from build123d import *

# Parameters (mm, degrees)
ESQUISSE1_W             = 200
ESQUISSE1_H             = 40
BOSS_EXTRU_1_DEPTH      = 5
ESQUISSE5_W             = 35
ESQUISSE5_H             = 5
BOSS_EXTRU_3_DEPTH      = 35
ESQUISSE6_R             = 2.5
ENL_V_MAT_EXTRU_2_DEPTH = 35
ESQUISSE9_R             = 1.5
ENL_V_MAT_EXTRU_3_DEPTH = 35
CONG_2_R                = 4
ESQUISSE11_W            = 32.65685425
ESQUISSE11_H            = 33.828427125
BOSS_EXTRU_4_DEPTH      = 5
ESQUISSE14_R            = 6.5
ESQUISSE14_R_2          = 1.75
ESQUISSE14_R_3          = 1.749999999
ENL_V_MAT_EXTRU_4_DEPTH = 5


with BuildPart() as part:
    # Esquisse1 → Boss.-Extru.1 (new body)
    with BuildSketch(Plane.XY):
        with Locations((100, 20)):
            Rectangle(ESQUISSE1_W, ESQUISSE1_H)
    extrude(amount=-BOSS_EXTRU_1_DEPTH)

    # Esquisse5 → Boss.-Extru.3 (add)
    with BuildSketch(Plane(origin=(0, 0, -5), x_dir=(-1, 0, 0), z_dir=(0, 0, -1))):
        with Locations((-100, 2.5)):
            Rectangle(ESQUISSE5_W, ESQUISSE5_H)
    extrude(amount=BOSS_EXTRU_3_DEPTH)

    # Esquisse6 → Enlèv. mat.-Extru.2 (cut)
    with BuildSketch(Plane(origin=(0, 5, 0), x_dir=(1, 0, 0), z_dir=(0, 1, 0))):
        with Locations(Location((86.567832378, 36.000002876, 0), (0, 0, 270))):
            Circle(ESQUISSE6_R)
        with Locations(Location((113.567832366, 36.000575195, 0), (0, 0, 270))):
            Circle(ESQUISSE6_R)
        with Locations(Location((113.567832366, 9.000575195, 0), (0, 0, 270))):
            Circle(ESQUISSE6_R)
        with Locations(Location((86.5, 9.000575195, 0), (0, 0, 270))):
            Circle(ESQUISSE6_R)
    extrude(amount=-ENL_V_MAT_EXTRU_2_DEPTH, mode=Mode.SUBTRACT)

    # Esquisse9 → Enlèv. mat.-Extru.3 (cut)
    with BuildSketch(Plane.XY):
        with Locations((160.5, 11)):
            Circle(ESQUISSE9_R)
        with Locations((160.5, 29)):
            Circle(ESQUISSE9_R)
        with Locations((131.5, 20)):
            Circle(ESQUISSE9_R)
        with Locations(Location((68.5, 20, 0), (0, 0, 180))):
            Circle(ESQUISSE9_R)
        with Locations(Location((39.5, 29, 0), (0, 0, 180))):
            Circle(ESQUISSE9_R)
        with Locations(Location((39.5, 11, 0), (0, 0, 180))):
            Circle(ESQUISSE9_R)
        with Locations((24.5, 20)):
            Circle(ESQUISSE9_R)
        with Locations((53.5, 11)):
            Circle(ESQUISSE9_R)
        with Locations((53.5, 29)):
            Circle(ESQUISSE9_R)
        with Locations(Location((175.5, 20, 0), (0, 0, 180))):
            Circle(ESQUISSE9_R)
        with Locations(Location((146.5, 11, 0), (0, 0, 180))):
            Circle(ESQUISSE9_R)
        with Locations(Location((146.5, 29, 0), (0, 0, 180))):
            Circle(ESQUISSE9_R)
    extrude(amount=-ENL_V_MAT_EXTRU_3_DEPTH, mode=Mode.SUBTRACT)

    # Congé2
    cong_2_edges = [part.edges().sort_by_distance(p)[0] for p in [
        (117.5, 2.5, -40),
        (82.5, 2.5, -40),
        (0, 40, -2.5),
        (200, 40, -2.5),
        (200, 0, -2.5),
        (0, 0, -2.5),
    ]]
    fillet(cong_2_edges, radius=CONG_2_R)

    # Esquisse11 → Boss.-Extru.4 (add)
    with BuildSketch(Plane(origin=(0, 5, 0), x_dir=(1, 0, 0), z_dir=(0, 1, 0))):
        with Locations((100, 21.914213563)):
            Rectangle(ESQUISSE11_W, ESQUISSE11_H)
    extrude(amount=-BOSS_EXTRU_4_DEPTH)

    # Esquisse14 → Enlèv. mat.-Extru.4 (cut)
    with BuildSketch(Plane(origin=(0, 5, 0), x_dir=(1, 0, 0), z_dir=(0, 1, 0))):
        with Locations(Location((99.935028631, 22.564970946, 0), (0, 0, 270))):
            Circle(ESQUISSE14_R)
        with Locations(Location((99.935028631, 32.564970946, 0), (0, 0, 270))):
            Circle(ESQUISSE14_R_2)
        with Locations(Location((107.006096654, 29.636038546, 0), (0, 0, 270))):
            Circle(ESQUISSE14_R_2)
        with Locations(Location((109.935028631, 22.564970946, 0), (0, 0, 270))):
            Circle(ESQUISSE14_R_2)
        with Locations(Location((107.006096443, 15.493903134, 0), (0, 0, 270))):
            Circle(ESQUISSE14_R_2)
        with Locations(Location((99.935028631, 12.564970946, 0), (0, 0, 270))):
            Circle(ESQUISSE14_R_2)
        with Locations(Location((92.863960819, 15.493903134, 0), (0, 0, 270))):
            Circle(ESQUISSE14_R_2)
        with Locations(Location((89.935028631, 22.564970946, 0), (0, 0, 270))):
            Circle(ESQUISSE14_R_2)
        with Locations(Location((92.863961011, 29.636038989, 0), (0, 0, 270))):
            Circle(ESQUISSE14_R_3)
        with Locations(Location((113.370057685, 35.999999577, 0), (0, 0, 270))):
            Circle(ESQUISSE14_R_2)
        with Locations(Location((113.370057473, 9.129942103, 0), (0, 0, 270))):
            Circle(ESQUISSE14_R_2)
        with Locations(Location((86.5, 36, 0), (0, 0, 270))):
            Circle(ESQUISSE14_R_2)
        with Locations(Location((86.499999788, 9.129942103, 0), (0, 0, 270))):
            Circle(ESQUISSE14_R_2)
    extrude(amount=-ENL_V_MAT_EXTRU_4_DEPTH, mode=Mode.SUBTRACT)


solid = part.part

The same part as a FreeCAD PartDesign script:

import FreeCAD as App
import Part
import Sketcher
from FreeCAD import Vector
Q = App.Units.Quantity


def edges_at(feature, points):
    """Names of the edges that pass closest to the given points."""
    edges = feature.Shape.Edges
    near = lambda p: min(range(len(edges)), key=lambda i: edges[i].distToShape(Part.Vertex(*p))[0])
    return sorted({f"Edge{near(p) + 1}" for p in points})


def add_polygon(sketch, points):
    """Adds a closed chain of lines whose ends are joined by coincident constraints."""
    first, n = sketch.GeometryCount, len(points)
    for a, b in zip(points, points[1:] + points[:1]):
        sketch.addGeometry(Part.LineSegment(App.Vector(*a, 0), App.Vector(*b, 0)), False)
    for i in range(n):
        sketch.addConstraint(Sketcher.Constraint("Coincident", first + i, 2, first + (i + 1) % n, 1))

doc = App.newDocument("Part")
body = doc.addObject("PartDesign::Body", "Body")

sketch1 = doc.addObject("Sketcher::SketchObject", "Sketch")
body.addObject(sketch1)
sketch1.AttachmentSupport = (doc.XY_Plane, [""])
sketch1.MapMode = "FlatFace"
add_polygon(sketch1, [(0, 40), (0, 0), (200, 0), (200, 40)])
sketch1.addConstraint(Sketcher.Constraint("Vertical", 0))
sketch1.addConstraint(Sketcher.Constraint("Horizontal", 1))
sketch1.addConstraint(Sketcher.Constraint("Vertical", 2))
sketch1.addConstraint(Sketcher.Constraint("Horizontal", 3))
sketch1.addConstraint(Sketcher.Constraint("Coincident", 0, 2, -1, 1))
sketch1.addConstraint(Sketcher.Constraint("DistanceX", 1, 1, 1, 2, Q("200 mm")))
sketch1.addConstraint(Sketcher.Constraint("DistanceY", 0, 2, 0, 1, Q("40 mm")))
pad1 = doc.addObject("PartDesign::Pad", "Pad")
body.addObject(pad1)
pad1.Profile = sketch1
pad1.Length = 5
pad1.Reversed = True

sketch2 = doc.addObject("Sketcher::SketchObject", "Sketch001")
body.addObject(sketch2)
sketch2.AttachmentSupport = (doc.XY_Plane, [""])
sketch2.MapMode = "FlatFace"
sketch2.AttachmentOffset = App.Placement(Vector(0, 0, -5), App.Rotation())
add_polygon(sketch2, [(118, 5), (118, 0), (82, 0), (82, 5)])
sketch2.addConstraint(Sketcher.Constraint("Vertical", 0))
sketch2.addConstraint(Sketcher.Constraint("Horizontal", 1))
sketch2.addConstraint(Sketcher.Constraint("Vertical", 2))
sketch2.addConstraint(Sketcher.Constraint("Horizontal", 3))
sketch2.addConstraint(Sketcher.Constraint("PointOnObject", 0, 2, -1))
sketch2.addConstraint(Sketcher.Constraint("DistanceX", 1, 2, 1, 1, Q("35 mm")))
sketch2.addConstraint(Sketcher.Constraint("DistanceY", 0, 2, 0, 1, Q("5 mm")))
sketch2.addConstraint(Sketcher.Constraint("DistanceX", -1, 1, 0, 2, Q("117.5 mm")))
pad2 = doc.addObject("PartDesign::Pad", "Pad001")
body.addObject(pad2)
pad2.Profile = sketch2
pad2.Length = 35
pad2.Reversed = True

sketch3 = doc.addObject("Sketcher::SketchObject", "Sketch002")
body.addObject(sketch3)
sketch3.AttachmentSupport = (doc.XZ_Plane, [""])
sketch3.MapMode = "FlatFace"
sketch3.AttachmentOffset = App.Placement(Vector(0, 0, -5), App.Rotation())
sketch3.addGeometry(Part.Circle(Vector(86.6, -36, 0), Vector(0, 0, 1), 2.5), False)
sketch3.addGeometry(Part.Circle(Vector(113.6, -36, 0), Vector(0, 0, 1), 2.5), False)
sketch3.addGeometry(Part.Circle(Vector(113.6, -9, 0), Vector(0, 0, 1), 2.5), False)
sketch3.addGeometry(Part.Circle(Vector(86.5, -9, 0), Vector(0, 0, 1), 2.5), False)
sketch3.addConstraint(Sketcher.Constraint("Equal", 0, 1))
sketch3.addConstraint(Sketcher.Constraint("Equal", 1, 2))
sketch3.addConstraint(Sketcher.Constraint("Equal", 2, 3))
sketch3.addConstraint(Sketcher.Constraint("Horizontal", 2, 3, 3, 3))
sketch3.addConstraint(Sketcher.Constraint("Vertical", 1, 3, 2, 3))
sketch3.addConstraint(Sketcher.Constraint("Diameter", 0, Q("5 mm")))
sketch3.addConstraint(Sketcher.Constraint("DistanceX", 0, 3, 1, 3, Q("27 mm")))
sketch3.addConstraint(Sketcher.Constraint("DistanceY", 1, 3, 2, 3, Q("27 mm")))
sketch3.addConstraint(Sketcher.Constraint("DistanceX", -1, 1, 3, 3, Q("86.5 mm")))
sketch3.addConstraint(Sketcher.Constraint("DistanceX", -1, 1, 0, 3, Q("86.567832 mm")))
sketch3.addConstraint(Sketcher.Constraint("DistanceY", 0, 3, -1, 1, Q("36.000003 mm")))
sketch3.addConstraint(Sketcher.Constraint("DistanceY", 1, 3, -1, 1, Q("36.000575 mm")))
pocket1 = doc.addObject("PartDesign::Pocket", "Pocket")
body.addObject(pocket1)
pocket1.Profile = sketch3
pocket1.Length = 35
pocket1.Reversed = True

sketch4 = doc.addObject("Sketcher::SketchObject", "Sketch003")
body.addObject(sketch4)
sketch4.AttachmentSupport = (doc.XY_Plane, [""])
sketch4.MapMode = "FlatFace"
sketch4.addGeometry(Part.Circle(Vector(160.5, 11, 0), Vector(0, 0, 1), 1.5), False)
sketch4.addGeometry(Part.Circle(Vector(160.5, 29, 0), Vector(0, 0, 1), 1.5), False)
sketch4.addGeometry(Part.Circle(Vector(131.5, 20, 0), Vector(0, 0, 1), 1.5), False)
sketch4.addGeometry(Part.Circle(Vector(68.5, 20, 0), Vector(0, 0, 1), 1.5), False)
sketch4.addGeometry(Part.Circle(Vector(39.5, 29, 0), Vector(0, 0, 1), 1.5), False)
sketch4.addGeometry(Part.Circle(Vector(39.5, 11, 0), Vector(0, 0, 1), 1.5), False)
sketch4.addGeometry(Part.Circle(Vector(24.5, 20, 0), Vector(0, 0, 1), 1.5), False)
sketch4.addGeometry(Part.Circle(Vector(53.5, 11, 0), Vector(0, 0, 1), 1.5), False)
sketch4.addGeometry(Part.Circle(Vector(53.5, 29, 0), Vector(0, 0, 1), 1.5), False)
sketch4.addGeometry(Part.Circle(Vector(175.5, 20, 0), Vector(0, 0, 1), 1.5), False)
sketch4.addGeometry(Part.Circle(Vector(146.5, 11, 0), Vector(0, 0, 1), 1.5), False)
sketch4.addGeometry(Part.Circle(Vector(146.5, 29, 0), Vector(0, 0, 1), 1.5), False)
sketch4.addConstraint(Sketcher.Constraint("Equal", 0, 1))
sketch4.addConstraint(Sketcher.Constraint("Equal", 1, 2))
sketch4.addConstraint(Sketcher.Constraint("Equal", 2, 3))
sketch4.addConstraint(Sketcher.Constraint("Equal", 3, 4))
sketch4.addConstraint(Sketcher.Constraint("Equal", 4, 5))
sketch4.addConstraint(Sketcher.Constraint("Equal", 5, 6))
sketch4.addConstraint(Sketcher.Constraint("Equal", 6, 7))
sketch4.addConstraint(Sketcher.Constraint("Equal", 7, 8))
sketch4.addConstraint(Sketcher.Constraint("Equal", 8, 9))
sketch4.addConstraint(Sketcher.Constraint("Equal", 9, 10))
sketch4.addConstraint(Sketcher.Constraint("Equal", 10, 11))
sketch4.addConstraint(Sketcher.Constraint("Horizontal", 2, 3, 3, 3))
sketch4.addConstraint(Sketcher.Constraint("Horizontal", 1, 3, 4, 3))
sketch4.addConstraint(Sketcher.Constraint("Horizontal", 0, 3, 5, 3))
sketch4.addConstraint(Sketcher.Constraint("Horizontal", 3, 3, 6, 3))
sketch4.addConstraint(Sketcher.Constraint("Horizontal", 5, 3, 7, 3))
sketch4.addConstraint(Sketcher.Constraint("Horizontal", 4, 3, 8, 3))
sketch4.addConstraint(Sketcher.Constraint("Horizontal", 6, 3, 9, 3))
sketch4.addConstraint(Sketcher.Constraint("Horizontal", 7, 3, 10, 3))
sketch4.addConstraint(Sketcher.Constraint("Horizontal", 8, 3, 11, 3))
sketch4.addConstraint(Sketcher.Constraint("Vertical", 0, 3, 1, 3))
sketch4.addConstraint(Sketcher.Constraint("Vertical", 4, 3, 5, 3))
sketch4.addConstraint(Sketcher.Constraint("Vertical", 7, 3, 8, 3))
sketch4.addConstraint(Sketcher.Constraint("Vertical", 10, 3, 11, 3))
sketch4.addConstraint(Sketcher.Constraint("Diameter", 0, Q("3 mm")))
sketch4.addConstraint(Sketcher.Constraint("DistanceY", -1, 1, 0, 3, Q("11 mm")))
sketch4.addConstraint(Sketcher.Constraint("DistanceY", -1, 1, 1, 3, Q("29 mm")))
sketch4.addConstraint(Sketcher.Constraint("DistanceY", -1, 1, 2, 3, Q("20 mm")))
sketch4.addConstraint(Sketcher.Constraint("DistanceX", 2, 3, 0, 3, Q("29 mm")))
sketch4.addConstraint(Sketcher.Constraint("DistanceX", 3, 3, 2, 3, Q("63 mm")))
sketch4.addConstraint(Sketcher.Constraint("DistanceX", 4, 3, 3, 3, Q("29 mm")))
sketch4.addConstraint(Sketcher.Constraint("DistanceX", 6, 3, 4, 3, Q("15 mm")))
sketch4.addConstraint(Sketcher.Constraint("DistanceX", 5, 3, 7, 3, Q("14 mm")))
sketch4.addConstraint(Sketcher.Constraint("DistanceX", 0, 3, 9, 3, Q("15 mm")))
sketch4.addConstraint(Sketcher.Constraint("DistanceX", 10, 3, 0, 3, Q("14 mm")))
sketch4.addConstraint(Sketcher.Constraint("DistanceX", -1, 1, 0, 3, Q("160.5 mm")))
pocket2 = doc.addObject("PartDesign::Pocket", "Pocket001")
body.addObject(pocket2)
pocket2.Profile = sketch4
pocket2.Length = 35
doc.recompute()

fillet = doc.addObject("PartDesign::Fillet", "Fillet")
body.addObject(fillet)
fillet.Base = (pocket2, edges_at(pocket2, [
    (117.5, 2.5, -40),
    (82.5, 2.5, -40),
    (0, 40, -2.5),
    (200, 40, -2.5),
    (200, 0, -2.5),
    (0, 0, -2.5),
]))
fillet.Radius = 4

sketch5 = doc.addObject("Sketcher::SketchObject", "Sketch004")
body.addObject(sketch5)
sketch5.AttachmentSupport = (doc.XZ_Plane, [""])
sketch5.MapMode = "FlatFace"
sketch5.AttachmentOffset = App.Placement(Vector(0, 0, -5), App.Rotation())
add_polygon(sketch5, [(84, -39), (84, -5), (116, -5), (116, -39)])
sketch5.addConstraint(Sketcher.Constraint("Vertical", 0))
sketch5.addConstraint(Sketcher.Constraint("Horizontal", 1))
sketch5.addConstraint(Sketcher.Constraint("Vertical", 2))
sketch5.addConstraint(Sketcher.Constraint("Horizontal", 3))
sketch5.addConstraint(Sketcher.Constraint("DistanceY", 0, 2, -1, 1, Q("5 mm")))
sketch5.addConstraint(Sketcher.Constraint("DistanceX", 1, 1, 1, 2, Q("32.656854 mm")))
sketch5.addConstraint(Sketcher.Constraint("DistanceY", 0, 1, 0, 2, Q("33.828427 mm")))
sketch5.addConstraint(Sketcher.Constraint("DistanceX", -1, 1, 0, 2, Q("83.671573 mm")))
pad3 = doc.addObject("PartDesign::Pad", "Pad002")
body.addObject(pad3)
pad3.Profile = sketch5
pad3.Length = 5

sketch6 = doc.addObject("Sketcher::SketchObject", "Sketch005")
body.addObject(sketch6)
sketch6.AttachmentSupport = (doc.XZ_Plane, [""])
sketch6.MapMode = "FlatFace"
sketch6.AttachmentOffset = App.Placement(Vector(0, 0, -5), App.Rotation())
sketch6.addGeometry(Part.Circle(Vector(99.9, -22.6, 0), Vector(0, 0, 1), 6.5), False)
sketch6.addGeometry(Part.Circle(Vector(99.9, -32.6, 0), Vector(0, 0, 1), 1.8), False)
sketch6.addGeometry(Part.Circle(Vector(107, -29.6, 0), Vector(0, 0, 1), 1.8), False)
sketch6.addGeometry(Part.Circle(Vector(109.9, -22.6, 0), Vector(0, 0, 1), 1.8), False)
sketch6.addGeometry(Part.Circle(Vector(107, -15.5, 0), Vector(0, 0, 1), 1.8), False)
sketch6.addGeometry(Part.Circle(Vector(99.9, -12.6, 0), Vector(0, 0, 1), 1.8), False)
sketch6.addGeometry(Part.Circle(Vector(92.9, -15.5, 0), Vector(0, 0, 1), 1.8), False)
sketch6.addGeometry(Part.Circle(Vector(89.9, -22.6, 0), Vector(0, 0, 1), 1.8), False)
sketch6.addGeometry(Part.Circle(Vector(92.9, -29.6, 0), Vector(0, 0, 1), 1.7), False)
sketch6.addGeometry(Part.Circle(Vector(113.4, -36, 0), Vector(0, 0, 1), 1.8), False)
sketch6.addGeometry(Part.Circle(Vector(113.4, -9.1, 0), Vector(0, 0, 1), 1.8), False)
sketch6.addGeometry(Part.Circle(Vector(86.5, -36, 0), Vector(0, 0, 1), 1.8), False)
sketch6.addGeometry(Part.Circle(Vector(86.5, -9.1, 0), Vector(0, 0, 1), 1.8), False)
sketch6.addConstraint(Sketcher.Constraint("Equal", 1, 2))
sketch6.addConstraint(Sketcher.Constraint("Equal", 2, 3))
sketch6.addConstraint(Sketcher.Constraint("Equal", 3, 4))
sketch6.addConstraint(Sketcher.Constraint("Equal", 4, 5))
sketch6.addConstraint(Sketcher.Constraint("Equal", 5, 6))
sketch6.addConstraint(Sketcher.Constraint("Equal", 6, 7))
sketch6.addConstraint(Sketcher.Constraint("Equal", 7, 8))
sketch6.addConstraint(Sketcher.Constraint("Equal", 8, 9))
sketch6.addConstraint(Sketcher.Constraint("Equal", 9, 10))
sketch6.addConstraint(Sketcher.Constraint("Equal", 10, 11))
sketch6.addConstraint(Sketcher.Constraint("Equal", 11, 12))
sketch6.addConstraint(Sketcher.Constraint("Horizontal", 0, 3, 3, 3))
sketch6.addConstraint(Sketcher.Constraint("Horizontal", 4, 3, 6, 3))
sketch6.addConstraint(Sketcher.Constraint("Horizontal", 3, 3, 7, 3))
sketch6.addConstraint(Sketcher.Constraint("Horizontal", 2, 3, 8, 3))
sketch6.addConstraint(Sketcher.Constraint("Horizontal", 9, 3, 11, 3))
sketch6.addConstraint(Sketcher.Constraint("Horizontal", 10, 3, 12, 3))
sketch6.addConstraint(Sketcher.Constraint("Vertical", 0, 3, 1, 3))
sketch6.addConstraint(Sketcher.Constraint("Vertical", 2, 3, 4, 3))
sketch6.addConstraint(Sketcher.Constraint("Vertical", 1, 3, 5, 3))
sketch6.addConstraint(Sketcher.Constraint("Vertical", 6, 3, 8, 3))
sketch6.addConstraint(Sketcher.Constraint("Vertical", 9, 3, 10, 3))
sketch6.addConstraint(Sketcher.Constraint("Vertical", 11, 3, 12, 3))
sketch6.addConstraint(Sketcher.Constraint("Diameter", 0, Q("13 mm")))
sketch6.addConstraint(Sketcher.Constraint("Diameter", 1, Q("3.5 mm")))
sketch6.addConstraint(Sketcher.Constraint("DistanceY", 9, 3, -1, 1, Q("36 mm")))
sketch6.addConstraint(Sketcher.Constraint("DistanceY", 1, 3, 0, 3, Q("10 mm")))
sketch6.addConstraint(Sketcher.Constraint("DistanceX", 0, 3, 3, 3, Q("10 mm")))
sketch6.addConstraint(Sketcher.Constraint("DistanceY", 0, 3, 5, 3, Q("10 mm")))
sketch6.addConstraint(Sketcher.Constraint("DistanceX", 7, 3, 0, 3, Q("10 mm")))
sketch6.addConstraint(Sketcher.Constraint("DistanceX", -1, 1, 11, 3, Q("86.5 mm")))
sketch6.addConstraint(Sketcher.Constraint("DistanceX", -1, 1, 0, 3, Q("99.935029 mm")))
sketch6.addConstraint(Sketcher.Constraint("DistanceY", 0, 3, -1, 1, Q("22.564971 mm")))
sketch6.addConstraint(Sketcher.Constraint("DistanceY", 2, 3, -1, 1, Q("29.636039 mm")))
sketch6.addConstraint(Sketcher.Constraint("DistanceX", -1, 1, 6, 3, Q("92.863961 mm")))
sketch6.addConstraint(Sketcher.Constraint("DistanceX", 1, 3, 2, 3, Q("7.071068 mm")))
sketch6.addConstraint(Sketcher.Constraint("DistanceX", 2, 3, 9, 3, Q("6.363961 mm")))
sketch6.addConstraint(Sketcher.Constraint("DistanceY", 4, 3, 10, 3, Q("6.363961 mm")))
sketch6.addConstraint(Sketcher.Constraint("DistanceY", 5, 3, 10, 3, Q("3.435029 mm")))
pocket3 = doc.addObject("PartDesign::Pocket", "Pocket002")
body.addObject(pocket3)
pocket3.Profile = sketch6
pocket3.Length = 5
pocket3.Reversed = True

doc.recompute()
